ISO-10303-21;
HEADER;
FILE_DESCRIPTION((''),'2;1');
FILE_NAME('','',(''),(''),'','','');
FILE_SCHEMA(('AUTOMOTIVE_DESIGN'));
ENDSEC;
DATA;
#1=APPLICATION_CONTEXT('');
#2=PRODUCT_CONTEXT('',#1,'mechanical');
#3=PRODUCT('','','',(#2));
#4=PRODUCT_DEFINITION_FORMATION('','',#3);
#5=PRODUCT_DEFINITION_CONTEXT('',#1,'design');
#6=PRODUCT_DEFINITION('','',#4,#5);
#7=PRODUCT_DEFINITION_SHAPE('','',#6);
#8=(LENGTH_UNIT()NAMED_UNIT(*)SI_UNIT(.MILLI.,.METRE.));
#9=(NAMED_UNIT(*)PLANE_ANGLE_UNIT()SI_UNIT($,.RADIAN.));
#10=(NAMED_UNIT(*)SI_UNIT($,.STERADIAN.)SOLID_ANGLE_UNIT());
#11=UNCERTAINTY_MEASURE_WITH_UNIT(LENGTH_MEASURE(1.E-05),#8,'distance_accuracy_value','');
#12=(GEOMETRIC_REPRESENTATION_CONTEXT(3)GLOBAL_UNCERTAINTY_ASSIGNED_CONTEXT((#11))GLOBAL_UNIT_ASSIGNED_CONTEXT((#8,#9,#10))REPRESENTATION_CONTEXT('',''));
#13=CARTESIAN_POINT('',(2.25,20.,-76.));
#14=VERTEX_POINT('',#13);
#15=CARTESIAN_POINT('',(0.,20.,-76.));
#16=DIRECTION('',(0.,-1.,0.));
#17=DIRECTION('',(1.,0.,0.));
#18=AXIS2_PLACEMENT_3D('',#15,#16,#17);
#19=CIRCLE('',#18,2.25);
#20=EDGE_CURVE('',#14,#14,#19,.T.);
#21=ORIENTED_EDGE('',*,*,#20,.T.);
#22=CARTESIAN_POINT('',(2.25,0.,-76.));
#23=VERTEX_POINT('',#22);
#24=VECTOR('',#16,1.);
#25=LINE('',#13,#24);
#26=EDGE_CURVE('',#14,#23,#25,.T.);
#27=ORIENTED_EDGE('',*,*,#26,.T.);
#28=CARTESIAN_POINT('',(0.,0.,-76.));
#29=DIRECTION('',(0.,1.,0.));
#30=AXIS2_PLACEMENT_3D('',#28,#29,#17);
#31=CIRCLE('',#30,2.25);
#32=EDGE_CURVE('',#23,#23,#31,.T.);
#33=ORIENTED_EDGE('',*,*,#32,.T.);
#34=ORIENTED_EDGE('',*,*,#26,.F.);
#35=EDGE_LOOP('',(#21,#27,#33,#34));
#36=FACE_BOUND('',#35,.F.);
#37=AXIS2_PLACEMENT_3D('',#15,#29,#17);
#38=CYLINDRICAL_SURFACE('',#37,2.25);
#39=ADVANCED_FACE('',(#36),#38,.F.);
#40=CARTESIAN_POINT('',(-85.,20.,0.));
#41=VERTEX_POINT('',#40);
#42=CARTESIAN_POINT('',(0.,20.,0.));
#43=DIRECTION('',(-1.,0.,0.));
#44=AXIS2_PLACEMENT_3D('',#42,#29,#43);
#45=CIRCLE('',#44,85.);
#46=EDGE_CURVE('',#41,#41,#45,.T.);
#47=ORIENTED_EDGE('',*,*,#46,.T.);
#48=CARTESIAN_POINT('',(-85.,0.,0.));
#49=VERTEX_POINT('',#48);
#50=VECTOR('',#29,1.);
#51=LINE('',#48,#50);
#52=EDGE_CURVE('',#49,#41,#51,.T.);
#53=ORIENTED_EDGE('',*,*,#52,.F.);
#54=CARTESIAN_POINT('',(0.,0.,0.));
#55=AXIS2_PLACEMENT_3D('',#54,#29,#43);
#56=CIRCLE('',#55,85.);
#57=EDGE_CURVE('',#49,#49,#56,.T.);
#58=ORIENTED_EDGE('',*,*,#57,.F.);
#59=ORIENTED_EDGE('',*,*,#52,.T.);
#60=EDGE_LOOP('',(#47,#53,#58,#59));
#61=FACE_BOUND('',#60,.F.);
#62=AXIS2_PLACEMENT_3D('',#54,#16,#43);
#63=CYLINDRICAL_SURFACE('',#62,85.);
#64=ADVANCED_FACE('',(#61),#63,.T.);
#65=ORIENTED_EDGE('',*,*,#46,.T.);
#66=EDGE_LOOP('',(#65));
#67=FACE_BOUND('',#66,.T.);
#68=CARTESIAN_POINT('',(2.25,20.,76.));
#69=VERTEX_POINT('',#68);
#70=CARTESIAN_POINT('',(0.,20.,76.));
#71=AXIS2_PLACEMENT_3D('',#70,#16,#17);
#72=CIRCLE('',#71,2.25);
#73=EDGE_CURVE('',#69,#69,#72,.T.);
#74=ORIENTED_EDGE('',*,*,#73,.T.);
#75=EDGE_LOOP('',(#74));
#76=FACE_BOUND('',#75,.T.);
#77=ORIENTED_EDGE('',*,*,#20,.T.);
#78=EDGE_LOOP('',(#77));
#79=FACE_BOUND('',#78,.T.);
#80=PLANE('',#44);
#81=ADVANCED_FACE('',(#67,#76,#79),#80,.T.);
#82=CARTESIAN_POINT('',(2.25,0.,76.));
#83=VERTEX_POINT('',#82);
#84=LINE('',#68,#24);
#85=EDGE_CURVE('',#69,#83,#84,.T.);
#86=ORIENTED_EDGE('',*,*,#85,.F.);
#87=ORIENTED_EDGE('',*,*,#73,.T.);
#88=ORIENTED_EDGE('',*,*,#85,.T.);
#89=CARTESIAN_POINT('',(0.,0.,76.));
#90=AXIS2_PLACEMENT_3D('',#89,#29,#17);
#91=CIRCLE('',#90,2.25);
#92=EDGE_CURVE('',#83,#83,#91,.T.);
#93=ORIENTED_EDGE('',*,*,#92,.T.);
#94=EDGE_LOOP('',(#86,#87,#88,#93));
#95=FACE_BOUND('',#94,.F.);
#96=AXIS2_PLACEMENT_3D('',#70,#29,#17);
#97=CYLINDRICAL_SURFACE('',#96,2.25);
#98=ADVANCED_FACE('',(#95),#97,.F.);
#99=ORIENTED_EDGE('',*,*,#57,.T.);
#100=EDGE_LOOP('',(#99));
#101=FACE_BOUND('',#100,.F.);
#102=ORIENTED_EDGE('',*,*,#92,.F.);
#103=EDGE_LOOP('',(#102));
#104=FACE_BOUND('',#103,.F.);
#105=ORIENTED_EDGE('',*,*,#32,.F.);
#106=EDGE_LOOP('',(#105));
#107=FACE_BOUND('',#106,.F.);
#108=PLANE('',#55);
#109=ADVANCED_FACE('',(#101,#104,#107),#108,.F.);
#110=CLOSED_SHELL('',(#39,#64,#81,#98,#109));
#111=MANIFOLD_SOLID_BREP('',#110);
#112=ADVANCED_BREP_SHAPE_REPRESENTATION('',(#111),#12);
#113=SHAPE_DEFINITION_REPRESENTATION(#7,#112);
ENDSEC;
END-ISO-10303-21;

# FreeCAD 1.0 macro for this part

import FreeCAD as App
import Part
import Sketcher
Q = App.Units.Quantity

doc = App.newDocument("Part")
body = doc.addObject("PartDesign::Body", "Body")

# Sketch on XZ plane
sketch1 = body.newObject("Sketcher::SketchObject", "Sketch")
sketch1.AttachmentSupport = (doc.getObject("XZ_Plane"), [""])
sketch1.MapMode = "FlatFace"
sketch1.addGeometry(Part.Circle(App.Vector(0, 0, 0), App.Vector(0, 0, 1), 85), False)
sketch1.addConstraint(Sketcher.Constraint("Coincident", 0, 3, -1, 1))
sketch1.addConstraint(Sketcher.Constraint("Diameter", 0, Q("170 mm")))
pad1 = body.newObject("PartDesign::Pad", "Pad")
pad1.Profile = sketch1
pad1.Length = 20
pad1.Reversed = True

# Sketch on XZ plane
sketch2 = body.newObject("Sketcher::SketchObject", "Sketch001")
sketch2.AttachmentSupport = (doc.getObject("XZ_Plane"), [""])
sketch2.MapMode = "FlatFace"
sketch2.AttachmentOffset = App.Placement(App.Vector(0, 0, -20), App.Rotation())
sketch2.addGeometry(Part.Circle(App.Vector(0, -76, 0), App.Vector(0, 0, 1), 2.25), False)
sketch2.addGeometry(Part.Circle(App.Vector(0, 76, 0), App.Vector(0, 0, 1), 2.25), False)
sketch2.addConstraint(Sketcher.Constraint("Equal", 0, 1))
sketch2.addConstraint(Sketcher.Constraint("Symmetric", 0, 3, 1, 3, -1, 1))
sketch2.addConstraint(Sketcher.Constraint("PointOnObject", 0, 3, -2))
sketch2.addConstraint(Sketcher.Constraint("Diameter", 0, Q("4.5 mm")))
sketch2.addConstraint(Sketcher.Constraint("DistanceY", 0, 3, 1, 3, Q("152 mm")))
pocket1 = body.newObject("PartDesign::Pocket", "Pocket")
pocket1.Profile = sketch2
pocket1.Length = 20
pocket1.Reversed = True

doc.recompute()
